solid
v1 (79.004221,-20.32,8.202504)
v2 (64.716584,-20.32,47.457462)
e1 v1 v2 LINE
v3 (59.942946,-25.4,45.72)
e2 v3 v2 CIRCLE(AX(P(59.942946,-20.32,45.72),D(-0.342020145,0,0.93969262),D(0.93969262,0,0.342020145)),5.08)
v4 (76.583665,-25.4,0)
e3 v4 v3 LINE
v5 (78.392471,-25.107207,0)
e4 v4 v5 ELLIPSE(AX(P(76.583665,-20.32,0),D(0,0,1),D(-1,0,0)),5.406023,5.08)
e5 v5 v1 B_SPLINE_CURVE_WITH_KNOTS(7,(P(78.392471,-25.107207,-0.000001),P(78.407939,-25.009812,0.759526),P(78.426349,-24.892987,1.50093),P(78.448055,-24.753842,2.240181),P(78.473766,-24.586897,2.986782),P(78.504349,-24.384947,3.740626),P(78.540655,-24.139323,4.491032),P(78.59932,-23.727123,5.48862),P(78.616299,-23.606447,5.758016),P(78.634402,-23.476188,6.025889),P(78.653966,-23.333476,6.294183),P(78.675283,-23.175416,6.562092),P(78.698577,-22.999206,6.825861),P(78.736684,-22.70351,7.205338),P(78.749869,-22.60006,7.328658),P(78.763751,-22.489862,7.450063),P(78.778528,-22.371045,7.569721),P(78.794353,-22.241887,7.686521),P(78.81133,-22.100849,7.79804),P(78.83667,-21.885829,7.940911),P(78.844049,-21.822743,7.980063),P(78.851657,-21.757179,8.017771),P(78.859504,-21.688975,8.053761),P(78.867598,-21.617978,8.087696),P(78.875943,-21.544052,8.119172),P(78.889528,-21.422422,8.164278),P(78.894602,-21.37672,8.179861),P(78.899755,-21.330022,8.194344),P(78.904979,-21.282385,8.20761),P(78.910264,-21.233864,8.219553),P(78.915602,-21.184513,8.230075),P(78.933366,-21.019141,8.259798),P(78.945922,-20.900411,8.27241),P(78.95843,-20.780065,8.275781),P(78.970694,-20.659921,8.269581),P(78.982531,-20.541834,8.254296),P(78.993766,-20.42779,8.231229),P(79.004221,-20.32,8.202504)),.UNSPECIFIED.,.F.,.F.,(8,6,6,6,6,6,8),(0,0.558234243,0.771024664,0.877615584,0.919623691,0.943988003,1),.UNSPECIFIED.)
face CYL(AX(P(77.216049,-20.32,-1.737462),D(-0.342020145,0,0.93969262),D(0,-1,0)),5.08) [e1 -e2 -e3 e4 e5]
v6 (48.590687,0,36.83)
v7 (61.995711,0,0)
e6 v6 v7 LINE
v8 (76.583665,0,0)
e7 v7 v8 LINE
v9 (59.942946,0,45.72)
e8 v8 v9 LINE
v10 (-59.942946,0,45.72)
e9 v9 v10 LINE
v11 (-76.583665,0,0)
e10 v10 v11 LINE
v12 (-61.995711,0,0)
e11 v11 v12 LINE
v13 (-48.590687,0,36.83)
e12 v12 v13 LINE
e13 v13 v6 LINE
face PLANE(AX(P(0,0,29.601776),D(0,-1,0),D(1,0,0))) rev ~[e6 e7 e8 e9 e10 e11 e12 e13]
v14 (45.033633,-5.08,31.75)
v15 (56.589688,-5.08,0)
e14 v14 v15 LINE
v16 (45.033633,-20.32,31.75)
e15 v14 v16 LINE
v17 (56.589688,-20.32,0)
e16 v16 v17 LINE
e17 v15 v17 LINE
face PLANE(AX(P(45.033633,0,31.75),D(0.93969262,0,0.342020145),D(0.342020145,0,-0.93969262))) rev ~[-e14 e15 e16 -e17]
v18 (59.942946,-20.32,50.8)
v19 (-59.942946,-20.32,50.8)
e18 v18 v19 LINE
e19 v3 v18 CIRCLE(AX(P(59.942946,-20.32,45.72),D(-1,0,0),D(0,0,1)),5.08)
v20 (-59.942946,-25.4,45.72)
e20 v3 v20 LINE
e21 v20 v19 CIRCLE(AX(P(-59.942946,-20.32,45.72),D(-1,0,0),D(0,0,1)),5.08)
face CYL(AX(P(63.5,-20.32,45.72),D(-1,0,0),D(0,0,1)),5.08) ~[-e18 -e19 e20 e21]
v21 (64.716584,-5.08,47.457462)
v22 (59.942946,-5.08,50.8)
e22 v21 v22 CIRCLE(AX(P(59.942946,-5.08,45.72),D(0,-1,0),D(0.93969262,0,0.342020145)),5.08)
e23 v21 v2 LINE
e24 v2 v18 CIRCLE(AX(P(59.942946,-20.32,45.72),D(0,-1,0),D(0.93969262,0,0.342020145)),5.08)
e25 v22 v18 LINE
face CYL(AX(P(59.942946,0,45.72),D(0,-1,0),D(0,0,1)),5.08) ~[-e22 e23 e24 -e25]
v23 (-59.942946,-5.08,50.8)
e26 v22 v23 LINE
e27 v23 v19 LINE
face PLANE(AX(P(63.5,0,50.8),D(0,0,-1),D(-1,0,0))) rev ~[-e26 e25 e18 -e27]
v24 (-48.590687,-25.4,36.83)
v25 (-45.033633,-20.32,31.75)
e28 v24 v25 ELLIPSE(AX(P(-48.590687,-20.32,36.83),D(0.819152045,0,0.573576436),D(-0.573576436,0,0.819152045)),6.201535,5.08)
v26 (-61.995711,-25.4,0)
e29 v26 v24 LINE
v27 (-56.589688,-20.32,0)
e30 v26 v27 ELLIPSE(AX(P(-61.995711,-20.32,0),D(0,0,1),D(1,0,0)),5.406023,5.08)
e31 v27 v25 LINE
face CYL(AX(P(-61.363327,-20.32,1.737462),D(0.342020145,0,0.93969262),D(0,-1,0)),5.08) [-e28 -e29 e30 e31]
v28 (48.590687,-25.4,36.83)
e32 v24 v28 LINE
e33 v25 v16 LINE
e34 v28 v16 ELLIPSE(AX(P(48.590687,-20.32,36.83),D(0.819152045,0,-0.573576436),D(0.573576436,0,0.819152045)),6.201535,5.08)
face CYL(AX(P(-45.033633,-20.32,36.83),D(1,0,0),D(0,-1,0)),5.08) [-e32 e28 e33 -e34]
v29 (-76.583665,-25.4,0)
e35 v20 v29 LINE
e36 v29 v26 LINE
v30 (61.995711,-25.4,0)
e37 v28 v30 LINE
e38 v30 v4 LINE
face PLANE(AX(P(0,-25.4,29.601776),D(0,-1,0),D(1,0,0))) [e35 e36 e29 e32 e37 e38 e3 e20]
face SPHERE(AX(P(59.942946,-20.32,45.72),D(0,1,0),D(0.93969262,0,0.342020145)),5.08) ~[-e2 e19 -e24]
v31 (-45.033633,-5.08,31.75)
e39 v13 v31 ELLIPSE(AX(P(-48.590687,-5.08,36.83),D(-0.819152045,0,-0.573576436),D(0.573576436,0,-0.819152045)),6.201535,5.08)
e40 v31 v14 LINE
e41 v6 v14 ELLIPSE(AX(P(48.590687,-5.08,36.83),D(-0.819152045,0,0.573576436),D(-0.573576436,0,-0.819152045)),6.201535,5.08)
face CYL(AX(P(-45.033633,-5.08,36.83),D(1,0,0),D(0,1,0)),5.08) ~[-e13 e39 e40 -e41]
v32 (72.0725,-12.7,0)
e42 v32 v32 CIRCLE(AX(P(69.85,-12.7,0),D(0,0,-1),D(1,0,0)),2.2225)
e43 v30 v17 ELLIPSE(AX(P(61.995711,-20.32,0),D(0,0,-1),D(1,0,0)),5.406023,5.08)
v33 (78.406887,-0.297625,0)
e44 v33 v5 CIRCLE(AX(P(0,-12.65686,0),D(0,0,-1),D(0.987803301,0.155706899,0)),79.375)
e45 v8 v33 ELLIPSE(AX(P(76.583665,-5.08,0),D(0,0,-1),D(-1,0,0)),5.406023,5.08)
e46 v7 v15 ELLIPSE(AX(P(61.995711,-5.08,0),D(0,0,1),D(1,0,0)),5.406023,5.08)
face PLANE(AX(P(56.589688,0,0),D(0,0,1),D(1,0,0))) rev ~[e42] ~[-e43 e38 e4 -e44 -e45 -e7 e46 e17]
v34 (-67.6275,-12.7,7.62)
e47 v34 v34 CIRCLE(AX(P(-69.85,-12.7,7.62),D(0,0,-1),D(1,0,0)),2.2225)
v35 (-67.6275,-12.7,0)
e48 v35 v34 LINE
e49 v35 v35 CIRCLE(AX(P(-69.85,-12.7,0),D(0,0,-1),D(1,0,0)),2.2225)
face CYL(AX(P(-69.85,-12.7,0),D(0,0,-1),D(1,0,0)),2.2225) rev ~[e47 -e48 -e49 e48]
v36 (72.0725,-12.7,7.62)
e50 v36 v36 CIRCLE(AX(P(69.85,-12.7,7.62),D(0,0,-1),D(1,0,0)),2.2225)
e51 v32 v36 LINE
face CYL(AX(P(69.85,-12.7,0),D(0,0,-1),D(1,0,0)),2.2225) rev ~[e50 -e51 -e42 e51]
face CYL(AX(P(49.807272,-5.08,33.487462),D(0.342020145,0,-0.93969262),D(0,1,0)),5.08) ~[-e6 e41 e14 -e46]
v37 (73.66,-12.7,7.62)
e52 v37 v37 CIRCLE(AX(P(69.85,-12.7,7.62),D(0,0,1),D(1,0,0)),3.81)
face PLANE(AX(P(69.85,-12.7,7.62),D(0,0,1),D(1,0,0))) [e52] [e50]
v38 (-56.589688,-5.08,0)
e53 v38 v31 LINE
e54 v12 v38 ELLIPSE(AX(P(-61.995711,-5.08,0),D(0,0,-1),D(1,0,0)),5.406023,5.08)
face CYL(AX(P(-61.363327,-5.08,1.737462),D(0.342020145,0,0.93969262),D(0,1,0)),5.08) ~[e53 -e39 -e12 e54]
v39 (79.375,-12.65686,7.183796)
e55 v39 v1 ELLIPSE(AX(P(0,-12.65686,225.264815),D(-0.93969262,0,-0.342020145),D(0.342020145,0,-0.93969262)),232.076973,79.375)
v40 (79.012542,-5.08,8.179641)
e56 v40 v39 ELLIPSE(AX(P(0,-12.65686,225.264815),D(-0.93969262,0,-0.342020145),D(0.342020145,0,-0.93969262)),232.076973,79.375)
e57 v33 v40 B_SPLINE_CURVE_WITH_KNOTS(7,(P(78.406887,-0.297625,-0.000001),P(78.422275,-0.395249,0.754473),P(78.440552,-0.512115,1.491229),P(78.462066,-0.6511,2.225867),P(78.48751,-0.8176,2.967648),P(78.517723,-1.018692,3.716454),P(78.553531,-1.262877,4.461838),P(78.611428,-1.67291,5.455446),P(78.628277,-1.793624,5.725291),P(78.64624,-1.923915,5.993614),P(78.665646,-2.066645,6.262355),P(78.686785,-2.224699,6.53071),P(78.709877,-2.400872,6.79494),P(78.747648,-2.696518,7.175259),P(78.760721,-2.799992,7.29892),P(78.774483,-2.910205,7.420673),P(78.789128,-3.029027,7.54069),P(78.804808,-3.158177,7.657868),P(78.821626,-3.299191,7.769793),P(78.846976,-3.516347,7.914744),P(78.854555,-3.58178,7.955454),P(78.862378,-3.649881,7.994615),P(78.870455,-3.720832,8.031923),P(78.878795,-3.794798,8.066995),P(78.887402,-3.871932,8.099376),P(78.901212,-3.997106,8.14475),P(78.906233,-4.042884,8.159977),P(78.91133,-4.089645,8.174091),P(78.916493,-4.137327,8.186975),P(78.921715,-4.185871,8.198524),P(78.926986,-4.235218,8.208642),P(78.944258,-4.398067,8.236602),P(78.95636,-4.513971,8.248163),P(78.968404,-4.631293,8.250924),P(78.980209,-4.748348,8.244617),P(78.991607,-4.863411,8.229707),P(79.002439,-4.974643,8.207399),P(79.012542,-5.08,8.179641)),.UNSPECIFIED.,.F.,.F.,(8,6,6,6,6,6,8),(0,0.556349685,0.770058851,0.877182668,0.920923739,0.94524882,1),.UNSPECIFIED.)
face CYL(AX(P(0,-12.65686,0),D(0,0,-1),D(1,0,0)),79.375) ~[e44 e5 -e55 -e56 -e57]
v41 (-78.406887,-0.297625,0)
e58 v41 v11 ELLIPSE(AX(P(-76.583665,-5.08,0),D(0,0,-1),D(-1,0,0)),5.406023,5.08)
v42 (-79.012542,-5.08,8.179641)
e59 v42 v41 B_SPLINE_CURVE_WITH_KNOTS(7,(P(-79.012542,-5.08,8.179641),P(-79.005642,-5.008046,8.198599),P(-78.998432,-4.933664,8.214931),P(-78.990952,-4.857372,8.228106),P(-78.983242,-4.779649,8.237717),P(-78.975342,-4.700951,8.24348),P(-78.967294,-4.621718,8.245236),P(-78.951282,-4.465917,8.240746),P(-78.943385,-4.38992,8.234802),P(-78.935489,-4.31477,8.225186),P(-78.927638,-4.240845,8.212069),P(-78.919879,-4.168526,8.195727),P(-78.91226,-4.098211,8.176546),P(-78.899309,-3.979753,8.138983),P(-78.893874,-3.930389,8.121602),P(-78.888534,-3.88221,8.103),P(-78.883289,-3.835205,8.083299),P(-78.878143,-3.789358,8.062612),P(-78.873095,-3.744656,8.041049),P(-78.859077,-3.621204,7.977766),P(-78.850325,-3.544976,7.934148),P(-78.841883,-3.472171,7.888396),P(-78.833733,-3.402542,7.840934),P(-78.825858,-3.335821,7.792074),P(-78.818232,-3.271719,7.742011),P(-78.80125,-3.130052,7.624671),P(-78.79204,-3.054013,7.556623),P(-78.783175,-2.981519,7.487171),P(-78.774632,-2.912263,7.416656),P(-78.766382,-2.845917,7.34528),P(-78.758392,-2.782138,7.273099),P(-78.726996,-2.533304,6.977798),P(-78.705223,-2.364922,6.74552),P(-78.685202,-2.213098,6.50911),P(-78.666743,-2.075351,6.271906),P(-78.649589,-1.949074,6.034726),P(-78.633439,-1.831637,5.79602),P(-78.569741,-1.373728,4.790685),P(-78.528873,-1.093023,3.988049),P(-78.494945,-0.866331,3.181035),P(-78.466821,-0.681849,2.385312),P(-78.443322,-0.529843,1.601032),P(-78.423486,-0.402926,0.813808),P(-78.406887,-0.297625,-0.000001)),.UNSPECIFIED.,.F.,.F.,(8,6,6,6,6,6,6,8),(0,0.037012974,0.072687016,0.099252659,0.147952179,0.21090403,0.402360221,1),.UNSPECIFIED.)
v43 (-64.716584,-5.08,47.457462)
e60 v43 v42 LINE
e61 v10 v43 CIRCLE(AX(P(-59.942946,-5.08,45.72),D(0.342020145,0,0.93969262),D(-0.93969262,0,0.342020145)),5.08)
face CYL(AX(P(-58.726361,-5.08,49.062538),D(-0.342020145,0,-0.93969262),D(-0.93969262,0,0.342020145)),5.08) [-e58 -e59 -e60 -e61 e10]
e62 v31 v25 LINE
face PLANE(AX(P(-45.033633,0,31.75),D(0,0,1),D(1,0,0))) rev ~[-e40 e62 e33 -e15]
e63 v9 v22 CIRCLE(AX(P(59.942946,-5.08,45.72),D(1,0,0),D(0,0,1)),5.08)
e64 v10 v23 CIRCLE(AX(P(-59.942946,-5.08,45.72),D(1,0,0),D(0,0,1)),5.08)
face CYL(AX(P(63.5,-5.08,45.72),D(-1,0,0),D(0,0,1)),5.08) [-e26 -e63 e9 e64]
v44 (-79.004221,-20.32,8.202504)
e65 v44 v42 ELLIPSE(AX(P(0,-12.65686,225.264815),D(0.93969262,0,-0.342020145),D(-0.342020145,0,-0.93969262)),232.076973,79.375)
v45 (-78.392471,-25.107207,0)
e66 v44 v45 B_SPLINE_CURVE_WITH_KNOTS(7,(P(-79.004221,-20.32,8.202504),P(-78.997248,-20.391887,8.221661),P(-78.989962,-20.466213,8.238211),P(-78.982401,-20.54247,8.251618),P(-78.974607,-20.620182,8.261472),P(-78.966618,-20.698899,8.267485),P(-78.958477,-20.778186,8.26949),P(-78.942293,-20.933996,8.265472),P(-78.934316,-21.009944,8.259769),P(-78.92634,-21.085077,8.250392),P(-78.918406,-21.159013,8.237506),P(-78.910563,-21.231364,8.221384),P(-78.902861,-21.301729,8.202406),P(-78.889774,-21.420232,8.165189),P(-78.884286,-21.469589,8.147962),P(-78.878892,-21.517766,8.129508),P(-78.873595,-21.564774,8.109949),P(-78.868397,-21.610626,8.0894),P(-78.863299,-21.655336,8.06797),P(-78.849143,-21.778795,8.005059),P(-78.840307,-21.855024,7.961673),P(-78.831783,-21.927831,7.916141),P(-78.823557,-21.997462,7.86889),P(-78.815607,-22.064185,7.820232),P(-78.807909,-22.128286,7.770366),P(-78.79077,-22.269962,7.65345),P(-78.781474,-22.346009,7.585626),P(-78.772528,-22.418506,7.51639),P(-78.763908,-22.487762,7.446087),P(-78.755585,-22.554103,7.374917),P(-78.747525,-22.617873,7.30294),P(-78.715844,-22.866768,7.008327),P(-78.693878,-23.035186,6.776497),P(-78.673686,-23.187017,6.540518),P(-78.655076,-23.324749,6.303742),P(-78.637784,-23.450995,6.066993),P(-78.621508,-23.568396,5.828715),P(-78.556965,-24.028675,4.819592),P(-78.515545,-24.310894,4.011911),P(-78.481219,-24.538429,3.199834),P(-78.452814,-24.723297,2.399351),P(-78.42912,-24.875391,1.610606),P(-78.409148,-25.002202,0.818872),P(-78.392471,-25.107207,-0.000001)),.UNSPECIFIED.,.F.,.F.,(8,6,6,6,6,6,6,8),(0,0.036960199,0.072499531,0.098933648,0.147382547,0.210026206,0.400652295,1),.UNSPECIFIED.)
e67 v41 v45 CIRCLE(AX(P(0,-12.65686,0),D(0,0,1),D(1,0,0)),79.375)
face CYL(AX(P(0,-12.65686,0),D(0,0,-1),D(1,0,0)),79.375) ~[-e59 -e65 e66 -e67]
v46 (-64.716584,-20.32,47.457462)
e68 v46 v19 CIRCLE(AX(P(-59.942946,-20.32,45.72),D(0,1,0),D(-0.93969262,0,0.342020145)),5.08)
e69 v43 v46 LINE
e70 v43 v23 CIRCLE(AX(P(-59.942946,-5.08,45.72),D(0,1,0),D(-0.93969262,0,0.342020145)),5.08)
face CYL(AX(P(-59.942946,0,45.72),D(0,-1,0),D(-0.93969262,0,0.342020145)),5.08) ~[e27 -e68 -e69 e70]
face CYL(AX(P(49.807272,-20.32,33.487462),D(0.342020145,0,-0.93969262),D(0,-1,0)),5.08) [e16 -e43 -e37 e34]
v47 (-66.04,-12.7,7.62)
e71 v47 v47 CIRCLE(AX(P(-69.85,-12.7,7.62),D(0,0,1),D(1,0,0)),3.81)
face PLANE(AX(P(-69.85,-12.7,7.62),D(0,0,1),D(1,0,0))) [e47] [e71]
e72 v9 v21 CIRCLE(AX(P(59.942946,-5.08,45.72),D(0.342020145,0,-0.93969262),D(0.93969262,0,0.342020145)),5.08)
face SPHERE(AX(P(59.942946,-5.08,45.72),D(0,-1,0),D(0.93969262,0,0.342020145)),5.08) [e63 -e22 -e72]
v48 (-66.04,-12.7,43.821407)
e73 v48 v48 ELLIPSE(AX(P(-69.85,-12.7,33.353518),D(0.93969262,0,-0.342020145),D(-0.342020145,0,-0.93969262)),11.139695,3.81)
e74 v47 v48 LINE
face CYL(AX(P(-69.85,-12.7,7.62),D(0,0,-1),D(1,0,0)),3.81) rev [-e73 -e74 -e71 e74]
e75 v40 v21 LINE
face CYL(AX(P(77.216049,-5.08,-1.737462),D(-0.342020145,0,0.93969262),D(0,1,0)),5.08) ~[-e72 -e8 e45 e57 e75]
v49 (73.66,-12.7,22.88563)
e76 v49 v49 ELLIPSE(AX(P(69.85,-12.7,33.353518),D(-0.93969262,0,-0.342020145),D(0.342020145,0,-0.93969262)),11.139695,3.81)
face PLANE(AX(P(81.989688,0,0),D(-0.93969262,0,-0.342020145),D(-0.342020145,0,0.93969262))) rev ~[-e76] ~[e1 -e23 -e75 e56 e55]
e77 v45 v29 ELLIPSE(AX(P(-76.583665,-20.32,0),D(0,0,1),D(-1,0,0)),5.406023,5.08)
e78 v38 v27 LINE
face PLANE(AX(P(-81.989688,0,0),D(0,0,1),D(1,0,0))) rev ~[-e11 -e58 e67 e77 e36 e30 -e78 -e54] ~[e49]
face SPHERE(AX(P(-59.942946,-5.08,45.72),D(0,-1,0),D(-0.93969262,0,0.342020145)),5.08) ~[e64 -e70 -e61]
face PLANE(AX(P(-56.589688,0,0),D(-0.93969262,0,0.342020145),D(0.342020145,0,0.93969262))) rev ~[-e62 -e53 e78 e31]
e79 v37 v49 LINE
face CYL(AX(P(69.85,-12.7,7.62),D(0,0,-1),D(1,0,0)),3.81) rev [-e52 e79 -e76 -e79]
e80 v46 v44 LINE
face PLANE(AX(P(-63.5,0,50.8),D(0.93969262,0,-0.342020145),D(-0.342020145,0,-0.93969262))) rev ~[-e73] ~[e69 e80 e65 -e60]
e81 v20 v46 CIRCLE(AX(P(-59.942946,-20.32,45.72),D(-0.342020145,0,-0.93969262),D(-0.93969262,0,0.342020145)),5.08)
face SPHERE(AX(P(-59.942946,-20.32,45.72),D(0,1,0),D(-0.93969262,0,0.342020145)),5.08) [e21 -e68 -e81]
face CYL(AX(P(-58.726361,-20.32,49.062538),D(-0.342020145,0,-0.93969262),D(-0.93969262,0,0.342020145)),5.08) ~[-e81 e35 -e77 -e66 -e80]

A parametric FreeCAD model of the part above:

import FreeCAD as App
import Part
import Sketcher

V = App.Vector
Q = App.Units.Quantity


def edges_at(feature, points):
    """Names of the edges that pass closest to the given points."""
    edges = feature.Shape.Edges
    near = lambda p: min(range(len(edges)), key=lambda i: edges[i].distToShape(Part.Vertex(*p))[0])
    return sorted({f"Edge{near(p) + 1}" for p in points})

doc = App.newDocument("Part")
params = doc.addObject("Spreadsheet::Sheet", "Params")
for row, (alias, value) in enumerate([
    ("sketch1_width", "1 in"),
    ("sketch1_width2", "5 in"),
    ("pad1_length", "1 in"),
    ("sketch2_diameter", "0.175 in"),
    ("pocket1_length", "33.353518 mm"),
    ("fillet_radius", "0.2 in"),
    ("sketch3_diameter", "0.3 in"),
    ("sketch4_diameter", "6.25 in"),
    ("pocket3_length", "1 in"),
], start=1):
    params.set(f"A{row}", alias)
    params.set(f"B{row}", "=" + value)
    params.setAlias(f"B{row}", alias)

body = doc.addObject("PartDesign::Body", "Body")

sketch1 = doc.addObject("Sketcher::SketchObject", "Sketch")
body.addObject(sketch1)
sketch1.AttachmentSupport = (doc.XZ_Plane, [""])
sketch1.MapMode = "FlatFace"
sketch1.addGeometry([
    Part.LineSegment(V(-64, 51, 0), V(-82, 0, 0)),
    Part.LineSegment(V(-82, 0, 0), V(-57, 0, 0)),
    Part.LineSegment(V(-57, 0, 0), V(-45, 32, 0)),
    Part.LineSegment(V(-45, 32, 0), V(45, 32, 0)),
    Part.LineSegment(V(45, 32, 0), V(57, 0, 0)),
    Part.LineSegment(V(57, 0, 0), V(82, 0, 0)),
    Part.LineSegment(V(82, 0, 0), V(64, 51, 0)),
    Part.LineSegment(V(64, 51, 0), V(-64, 51, 0)),
], False)
sketch1.addConstraint([
    Sketcher.Constraint("Coincident", 0, 2, 1, 1),
    Sketcher.Constraint("Coincident", 1, 2, 2, 1),
    Sketcher.Constraint("Coincident", 2, 2, 3, 1),
    Sketcher.Constraint("Coincident", 3, 2, 4, 1),
    Sketcher.Constraint("Coincident", 4, 2, 5, 1),
    Sketcher.Constraint("Coincident", 5, 2, 6, 1),
    Sketcher.Constraint("Coincident", 6, 2, 7, 1),
    Sketcher.Constraint("Coincident", 7, 2, 0, 1),
    Sketcher.Constraint("Horizontal", 1),
    Sketcher.Constraint("Horizontal", 3),
    Sketcher.Constraint("Horizontal", 5),
    Sketcher.Constraint("Horizontal", 7),
    Sketcher.Constraint("Symmetric", 1, 2, 4, 2, -1, 1),
    Sketcher.Constraint("Symmetric", 0, 2, 5, 2, -2),
    Sketcher.Constraint("Parallel", 0, 2),
    Sketcher.Constraint("Parallel", 4, 6),
    Sketcher.Constraint("Equal", 2, 4),
    Sketcher.Constraint("DistanceX", 1, 1, 1, 2, Q("1 in")),
    Sketcher.Constraint("DistanceX", 7, 2, 7, 1, Q("5 in")),
    Sketcher.Constraint("DistanceY", -1, 1, 6, 2, Q("2 in")),
    Sketcher.Constraint("Angle", 0, Q("-110 deg")),
    Sketcher.Constraint("DistanceY", -1, 1, 2, 2, Q("1.25 in")),
])
sketch1.setExpression("Constraints[17]", "Params.sketch1_width")
sketch1.setExpression("Constraints[18]", "Params.sketch1_width2")
pad1 = doc.addObject("PartDesign::Pad", "Pad")
body.addObject(pad1)
pad1.Profile = sketch1
pad1.setExpression("Length", "Params.pad1_length")

sketch2 = doc.addObject("Sketcher::SketchObject", "Sketch001")
body.addObject(sketch2)
sketch2.AttachmentSupport = (doc.XY_Plane, [""])
sketch2.MapMode = "FlatFace"
sketch2.addGeometry([
    Part.Circle(V(69.8, -12.7, 0), V(0, 0, 1), 2.2),
    Part.Circle(V(-69.8, -12.7, 0), V(0, 0, 1), 2.2),
], False)
sketch2.addConstraint([
    Sketcher.Constraint("Equal", 0, 1),
    Sketcher.Constraint("Symmetric", 0, 3, 1, 3, -2),
    Sketcher.Constraint("Diameter", 0, Q("0.175 in")),
    Sketcher.Constraint("DistanceY", 0, 3, -1, 1, Q("0.5 in")),
    Sketcher.Constraint("DistanceX", 1, 3, 0, 3, Q("5.5 in")),
])
sketch2.setExpression("Constraints[2]", "Params.sketch2_diameter")
pocket1 = doc.addObject("PartDesign::Pocket", "Pocket")
body.addObject(pocket1)
pocket1.Profile = sketch2
pocket1.setExpression("Length", "Params.pocket1_length")
pocket1.Reversed = True
doc.recompute()

fillet = doc.addObject("PartDesign::Fillet", "Fillet")
body.addObject(fillet)
fillet.Base = (pocket1, edges_at(pocket1, [
    (-72.745, -25.4, 25.4),
    (-50.812, -25.4, 15.875),
    (0, -25.4, 31.75),
    (50.812, -25.4, 15.875),
    (72.745, -25.4, 25.4),
    (0, -25.4, 50.8),
    (72.745, 0, 25.4),
    (50.812, 0, 15.875),
    (0, 0, 31.75),
    (-50.812, 0, 15.875),
    (-72.745, 0, 25.4),
    (0, 0, 50.8),
    (-63.5, -12.7, 50.8),
    (63.5, -12.7, 50.8),
]))
fillet.setExpression("Radius", "Params.fillet_radius")

sketch3 = doc.addObject("Sketcher::SketchObject", "Sketch002")
body.addObject(sketch3)
sketch3.AttachmentSupport = (doc.XY_Plane, [""])
sketch3.MapMode = "FlatFace"
sketch3.AttachmentOffset = App.Placement(V(0, 0, 0.3 * 25.4), App.Rotation())
sketch3.addGeometry([
    Part.Circle(V(-69.8, -12.7, 0), V(0, 0, 1), 3.8),
    Part.Circle(V(69.8, -12.7, 0), V(0, 0, 1), 3.8),
], False)
sketch3.addConstraint([
    Sketcher.Constraint("Equal", 0, 1),
    Sketcher.Constraint("Symmetric", 0, 3, 1, 3, -2),
    Sketcher.Constraint("Diameter", 0, Q("0.3 in")),
    Sketcher.Constraint("DistanceY", 0, 3, -1, 1, Q("0.5 in")),
    Sketcher.Constraint("DistanceX", 0, 3, 1, 3, Q("5.5 in")),
])
sketch3.setExpression("Constraints[2]", "Params.sketch3_diameter")
pocket2 = doc.addObject("PartDesign::Pocket", "Pocket001")
body.addObject(pocket2)
pocket2.Profile = sketch3
pocket2.Type = "ThroughAll"
pocket2.Reversed = True

sketch4 = doc.addObject("Sketcher::SketchObject", "Sketch003")
body.addObject(sketch4)
sketch4.AttachmentSupport = (doc.XY_Plane, [""])
sketch4.MapMode = "FlatFace"
sketch4.addGeometry([
    Part.Circle(V(0, -13, 0), V(0, 0, 1), 89),
    Part.Circle(V(0, -13, 0), V(0, 0, 1), 79),
], False)
sketch4.addConstraint([
    Sketcher.Constraint("Coincident", 1, 3, 0, 3),
    Sketcher.Constraint("PointOnObject", 0, 3, -2),
    Sketcher.Constraint("Diameter", 1, Q("6.25 in")),
    Sketcher.Constraint("Diameter", 0, Q("177.418206 mm")),
    Sketcher.Constraint("DistanceY", 0, 3, -1, 1, Q("12.65686 mm")),
])
sketch4.setExpression("Constraints[2]", "Params.sketch4_diameter")
pocket3 = doc.addObject("PartDesign::Pocket", "Pocket002")
body.addObject(pocket3)
pocket3.Profile = sketch4
pocket3.setExpression("Length", "Params.pocket3_length")
pocket3.Reversed = True

doc.recompute()
